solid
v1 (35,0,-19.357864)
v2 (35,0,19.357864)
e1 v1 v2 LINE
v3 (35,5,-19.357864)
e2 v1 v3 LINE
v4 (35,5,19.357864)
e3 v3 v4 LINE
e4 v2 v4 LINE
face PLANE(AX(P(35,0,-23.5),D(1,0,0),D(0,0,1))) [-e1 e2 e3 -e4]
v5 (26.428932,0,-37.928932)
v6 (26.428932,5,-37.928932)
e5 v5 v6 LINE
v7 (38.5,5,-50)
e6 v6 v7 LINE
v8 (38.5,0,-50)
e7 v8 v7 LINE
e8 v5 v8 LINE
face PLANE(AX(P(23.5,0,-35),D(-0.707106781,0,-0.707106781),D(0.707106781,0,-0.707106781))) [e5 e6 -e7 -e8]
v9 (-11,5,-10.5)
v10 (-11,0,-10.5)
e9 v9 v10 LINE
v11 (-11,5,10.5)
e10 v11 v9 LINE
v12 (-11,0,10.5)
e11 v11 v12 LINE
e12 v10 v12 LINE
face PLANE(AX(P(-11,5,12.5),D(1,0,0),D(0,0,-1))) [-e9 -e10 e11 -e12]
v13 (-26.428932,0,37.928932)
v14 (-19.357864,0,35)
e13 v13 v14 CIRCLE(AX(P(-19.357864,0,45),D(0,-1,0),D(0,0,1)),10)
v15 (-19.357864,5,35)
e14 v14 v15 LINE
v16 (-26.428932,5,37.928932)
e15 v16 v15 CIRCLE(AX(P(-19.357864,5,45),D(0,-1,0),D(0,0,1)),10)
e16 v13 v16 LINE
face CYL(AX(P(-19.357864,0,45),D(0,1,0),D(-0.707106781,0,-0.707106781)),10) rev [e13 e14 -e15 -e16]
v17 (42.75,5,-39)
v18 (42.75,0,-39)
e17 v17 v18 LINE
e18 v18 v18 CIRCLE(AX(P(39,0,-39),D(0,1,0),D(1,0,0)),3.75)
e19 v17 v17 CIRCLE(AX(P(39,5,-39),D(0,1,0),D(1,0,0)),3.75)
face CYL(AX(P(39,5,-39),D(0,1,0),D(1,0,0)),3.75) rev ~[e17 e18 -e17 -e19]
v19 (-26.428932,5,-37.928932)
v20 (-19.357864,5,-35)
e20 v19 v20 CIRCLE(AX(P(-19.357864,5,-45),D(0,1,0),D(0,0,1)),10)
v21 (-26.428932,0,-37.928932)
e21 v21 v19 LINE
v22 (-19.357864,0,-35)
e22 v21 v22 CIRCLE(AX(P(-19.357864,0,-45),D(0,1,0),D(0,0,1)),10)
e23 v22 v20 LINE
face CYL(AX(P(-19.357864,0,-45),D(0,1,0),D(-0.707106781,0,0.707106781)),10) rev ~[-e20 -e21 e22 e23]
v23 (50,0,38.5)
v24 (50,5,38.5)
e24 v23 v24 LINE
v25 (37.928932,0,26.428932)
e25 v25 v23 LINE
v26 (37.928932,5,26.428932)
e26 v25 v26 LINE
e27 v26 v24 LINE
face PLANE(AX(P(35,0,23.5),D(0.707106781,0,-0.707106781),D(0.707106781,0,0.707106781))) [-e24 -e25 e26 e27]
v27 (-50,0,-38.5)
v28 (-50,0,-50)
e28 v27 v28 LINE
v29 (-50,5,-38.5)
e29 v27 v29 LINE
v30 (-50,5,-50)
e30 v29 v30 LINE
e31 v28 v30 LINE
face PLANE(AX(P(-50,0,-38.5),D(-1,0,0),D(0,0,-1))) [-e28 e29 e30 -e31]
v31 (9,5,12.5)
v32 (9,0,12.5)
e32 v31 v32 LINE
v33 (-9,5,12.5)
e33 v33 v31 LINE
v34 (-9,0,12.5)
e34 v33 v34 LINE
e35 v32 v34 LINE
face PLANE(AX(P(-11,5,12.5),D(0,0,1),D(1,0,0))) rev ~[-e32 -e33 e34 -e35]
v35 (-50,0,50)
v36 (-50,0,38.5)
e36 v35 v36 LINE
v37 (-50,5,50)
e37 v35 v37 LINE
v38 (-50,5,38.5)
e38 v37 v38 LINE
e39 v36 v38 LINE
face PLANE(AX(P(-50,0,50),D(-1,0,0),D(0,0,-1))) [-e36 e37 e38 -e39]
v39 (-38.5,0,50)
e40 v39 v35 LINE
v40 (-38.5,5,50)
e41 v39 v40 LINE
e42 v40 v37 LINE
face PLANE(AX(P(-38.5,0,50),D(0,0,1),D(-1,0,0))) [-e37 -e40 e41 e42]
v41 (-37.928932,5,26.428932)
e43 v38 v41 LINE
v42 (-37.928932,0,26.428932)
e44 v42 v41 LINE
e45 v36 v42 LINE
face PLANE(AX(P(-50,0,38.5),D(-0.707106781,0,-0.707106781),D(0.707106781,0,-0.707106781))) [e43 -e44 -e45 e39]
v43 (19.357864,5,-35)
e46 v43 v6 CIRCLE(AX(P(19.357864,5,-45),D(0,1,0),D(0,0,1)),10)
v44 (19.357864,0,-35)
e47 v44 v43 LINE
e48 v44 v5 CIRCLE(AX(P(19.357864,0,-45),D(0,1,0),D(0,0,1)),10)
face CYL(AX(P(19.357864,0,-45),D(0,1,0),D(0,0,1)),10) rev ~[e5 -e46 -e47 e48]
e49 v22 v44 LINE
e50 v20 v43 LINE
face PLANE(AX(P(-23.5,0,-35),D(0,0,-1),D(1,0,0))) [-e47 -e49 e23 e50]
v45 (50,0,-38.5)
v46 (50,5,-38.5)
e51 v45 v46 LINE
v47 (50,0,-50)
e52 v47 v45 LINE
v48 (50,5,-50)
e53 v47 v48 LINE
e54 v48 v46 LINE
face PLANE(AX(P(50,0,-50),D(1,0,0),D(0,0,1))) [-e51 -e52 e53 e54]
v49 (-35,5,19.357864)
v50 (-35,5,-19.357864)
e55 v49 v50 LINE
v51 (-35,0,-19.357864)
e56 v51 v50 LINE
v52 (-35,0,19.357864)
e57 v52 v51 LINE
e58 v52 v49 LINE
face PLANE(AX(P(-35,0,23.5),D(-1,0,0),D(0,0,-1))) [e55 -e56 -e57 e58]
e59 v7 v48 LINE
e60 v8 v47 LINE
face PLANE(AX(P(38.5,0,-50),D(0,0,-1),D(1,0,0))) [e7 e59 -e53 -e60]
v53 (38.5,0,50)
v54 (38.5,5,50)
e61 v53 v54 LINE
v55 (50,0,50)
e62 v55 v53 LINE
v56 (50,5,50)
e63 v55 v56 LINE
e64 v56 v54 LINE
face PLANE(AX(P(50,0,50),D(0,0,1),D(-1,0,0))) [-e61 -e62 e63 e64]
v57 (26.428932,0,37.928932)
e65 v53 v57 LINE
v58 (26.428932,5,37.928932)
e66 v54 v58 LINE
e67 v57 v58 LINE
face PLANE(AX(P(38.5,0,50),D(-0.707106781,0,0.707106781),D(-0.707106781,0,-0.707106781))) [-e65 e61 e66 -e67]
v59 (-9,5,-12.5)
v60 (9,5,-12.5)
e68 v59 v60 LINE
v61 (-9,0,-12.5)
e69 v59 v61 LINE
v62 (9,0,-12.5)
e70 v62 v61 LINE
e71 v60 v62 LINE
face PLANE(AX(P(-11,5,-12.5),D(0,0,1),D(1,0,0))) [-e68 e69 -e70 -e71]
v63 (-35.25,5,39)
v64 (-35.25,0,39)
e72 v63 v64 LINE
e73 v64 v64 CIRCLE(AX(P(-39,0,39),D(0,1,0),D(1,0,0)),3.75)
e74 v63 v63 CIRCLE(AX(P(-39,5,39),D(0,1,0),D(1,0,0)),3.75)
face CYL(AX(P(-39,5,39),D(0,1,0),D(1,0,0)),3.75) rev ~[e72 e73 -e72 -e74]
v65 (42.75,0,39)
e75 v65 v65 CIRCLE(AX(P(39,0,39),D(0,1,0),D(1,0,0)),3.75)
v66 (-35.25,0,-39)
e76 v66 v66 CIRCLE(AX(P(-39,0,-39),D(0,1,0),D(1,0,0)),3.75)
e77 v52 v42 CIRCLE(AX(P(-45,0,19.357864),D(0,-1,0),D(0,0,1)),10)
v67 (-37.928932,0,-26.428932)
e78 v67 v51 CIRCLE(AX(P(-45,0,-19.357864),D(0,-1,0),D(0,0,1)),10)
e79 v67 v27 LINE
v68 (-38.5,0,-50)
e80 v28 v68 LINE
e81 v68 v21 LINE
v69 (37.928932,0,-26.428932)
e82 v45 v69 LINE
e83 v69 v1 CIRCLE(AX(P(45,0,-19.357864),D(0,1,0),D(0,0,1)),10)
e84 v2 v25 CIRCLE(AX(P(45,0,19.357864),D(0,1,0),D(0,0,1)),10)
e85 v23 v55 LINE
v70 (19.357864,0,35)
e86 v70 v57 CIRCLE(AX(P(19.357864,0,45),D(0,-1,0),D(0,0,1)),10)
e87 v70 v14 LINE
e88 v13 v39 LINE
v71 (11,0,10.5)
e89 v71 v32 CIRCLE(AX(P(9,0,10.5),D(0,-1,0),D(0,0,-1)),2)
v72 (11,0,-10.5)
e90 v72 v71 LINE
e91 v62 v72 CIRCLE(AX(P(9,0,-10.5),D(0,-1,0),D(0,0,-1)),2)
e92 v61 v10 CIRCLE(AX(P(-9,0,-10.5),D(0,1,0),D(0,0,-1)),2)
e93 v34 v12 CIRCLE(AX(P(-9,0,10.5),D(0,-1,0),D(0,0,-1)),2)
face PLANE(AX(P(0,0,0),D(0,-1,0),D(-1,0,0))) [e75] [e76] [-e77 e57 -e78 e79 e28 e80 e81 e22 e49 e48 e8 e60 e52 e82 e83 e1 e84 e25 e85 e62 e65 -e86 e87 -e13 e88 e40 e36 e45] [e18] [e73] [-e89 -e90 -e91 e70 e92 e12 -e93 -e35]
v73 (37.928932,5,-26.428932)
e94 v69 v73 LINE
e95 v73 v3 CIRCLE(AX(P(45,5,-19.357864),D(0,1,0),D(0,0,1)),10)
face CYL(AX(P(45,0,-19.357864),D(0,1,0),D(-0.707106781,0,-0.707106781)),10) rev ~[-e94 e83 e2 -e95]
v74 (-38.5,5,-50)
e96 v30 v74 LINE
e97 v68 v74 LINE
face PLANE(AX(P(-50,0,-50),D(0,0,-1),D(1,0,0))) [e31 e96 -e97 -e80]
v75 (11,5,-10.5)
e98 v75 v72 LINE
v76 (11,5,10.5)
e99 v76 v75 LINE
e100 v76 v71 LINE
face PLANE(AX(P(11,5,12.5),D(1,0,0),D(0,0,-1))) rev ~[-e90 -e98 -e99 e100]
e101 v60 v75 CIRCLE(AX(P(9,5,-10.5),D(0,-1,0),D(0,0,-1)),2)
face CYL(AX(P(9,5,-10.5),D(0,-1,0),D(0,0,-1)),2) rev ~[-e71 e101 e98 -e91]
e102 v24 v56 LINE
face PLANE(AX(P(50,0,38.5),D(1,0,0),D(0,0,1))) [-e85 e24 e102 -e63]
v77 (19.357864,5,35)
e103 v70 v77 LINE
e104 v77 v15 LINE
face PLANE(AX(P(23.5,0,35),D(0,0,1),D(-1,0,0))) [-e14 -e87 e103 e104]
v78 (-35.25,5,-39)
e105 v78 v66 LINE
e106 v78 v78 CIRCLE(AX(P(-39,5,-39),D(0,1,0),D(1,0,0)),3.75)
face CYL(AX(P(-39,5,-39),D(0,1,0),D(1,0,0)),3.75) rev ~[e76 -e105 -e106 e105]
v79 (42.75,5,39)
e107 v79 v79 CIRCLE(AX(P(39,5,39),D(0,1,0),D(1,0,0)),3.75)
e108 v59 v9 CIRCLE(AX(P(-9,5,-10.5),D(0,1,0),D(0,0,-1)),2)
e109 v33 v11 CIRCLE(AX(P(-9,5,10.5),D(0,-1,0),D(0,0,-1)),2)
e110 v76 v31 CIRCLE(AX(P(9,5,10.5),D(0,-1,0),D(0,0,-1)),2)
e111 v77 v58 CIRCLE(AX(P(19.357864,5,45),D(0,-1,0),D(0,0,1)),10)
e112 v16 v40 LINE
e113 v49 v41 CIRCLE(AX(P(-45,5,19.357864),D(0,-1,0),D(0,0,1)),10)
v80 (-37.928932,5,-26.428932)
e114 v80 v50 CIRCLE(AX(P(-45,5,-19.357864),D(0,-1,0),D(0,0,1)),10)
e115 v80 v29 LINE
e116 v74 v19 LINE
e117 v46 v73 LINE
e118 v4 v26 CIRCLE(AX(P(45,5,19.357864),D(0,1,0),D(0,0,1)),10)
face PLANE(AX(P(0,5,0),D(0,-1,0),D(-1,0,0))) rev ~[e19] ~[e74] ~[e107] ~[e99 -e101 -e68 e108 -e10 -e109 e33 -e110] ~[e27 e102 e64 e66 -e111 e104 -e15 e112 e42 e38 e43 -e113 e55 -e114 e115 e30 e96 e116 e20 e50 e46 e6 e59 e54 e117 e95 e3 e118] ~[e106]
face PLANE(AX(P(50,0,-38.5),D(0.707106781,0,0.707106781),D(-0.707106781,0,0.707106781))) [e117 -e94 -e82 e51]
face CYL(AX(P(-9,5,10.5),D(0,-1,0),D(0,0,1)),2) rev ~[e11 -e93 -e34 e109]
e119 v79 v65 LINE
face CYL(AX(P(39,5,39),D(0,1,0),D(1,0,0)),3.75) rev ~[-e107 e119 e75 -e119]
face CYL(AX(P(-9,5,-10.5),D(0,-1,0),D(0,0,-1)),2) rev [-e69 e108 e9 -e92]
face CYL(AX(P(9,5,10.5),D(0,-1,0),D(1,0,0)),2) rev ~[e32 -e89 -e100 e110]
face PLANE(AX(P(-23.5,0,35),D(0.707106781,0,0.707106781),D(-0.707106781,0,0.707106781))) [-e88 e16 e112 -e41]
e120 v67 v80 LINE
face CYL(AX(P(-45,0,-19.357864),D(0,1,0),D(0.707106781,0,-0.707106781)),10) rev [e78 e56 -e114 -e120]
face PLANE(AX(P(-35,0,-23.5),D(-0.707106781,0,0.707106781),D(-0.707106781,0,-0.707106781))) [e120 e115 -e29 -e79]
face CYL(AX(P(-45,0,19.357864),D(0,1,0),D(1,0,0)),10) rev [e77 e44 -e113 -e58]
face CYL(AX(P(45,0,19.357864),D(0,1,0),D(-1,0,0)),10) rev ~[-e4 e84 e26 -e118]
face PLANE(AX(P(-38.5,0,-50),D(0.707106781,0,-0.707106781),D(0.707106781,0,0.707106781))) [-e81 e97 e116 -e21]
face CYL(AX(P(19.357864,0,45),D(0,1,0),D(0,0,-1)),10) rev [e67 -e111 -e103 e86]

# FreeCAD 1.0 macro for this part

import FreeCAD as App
import Part
import Sketcher
from FreeCAD import Vector
Q = App.Units.Quantity


def edges_at(feature, points):
    """Names of the edges that pass closest to the given points."""
    edges = feature.Shape.Edges
    near = lambda p: min(range(len(edges)), key=lambda i: edges[i].distToShape(Part.Vertex(*p))[0])
    return sorted({f"Edge{near(p) + 1}" for p in points})


def add_polygon(sketch, points):
    """Adds a closed chain of lines whose ends are joined by coincident constraints."""
    first, n = sketch.GeometryCount, len(points)
    for a, b in zip(points, points[1:] + points[:1]):
        sketch.addGeometry(Part.LineSegment(App.Vector(*a, 0), App.Vector(*b, 0)), False)
    for i in range(n):
        sketch.addConstraint(Sketcher.Constraint("Coincident", first + i, 2, first + (i + 1) % n, 1))

doc = App.newDocument("Part")
body = doc.addObject("PartDesign::Body", "Body")

# Sketch on XZ plane
sketch1 = body.newObject("Sketcher::SketchObject", "Sketch")
sketch1.AttachmentSupport = (doc.getObject("XZ_Plane"), [""])
sketch1.MapMode = "FlatFace"
add_polygon(sketch1, [(-50, -50), (-50, -38), (-35, -24), (-35, 24), (-50, 38), (-50, 50), (-38, 50), (-24, 35), (24, 35), (38, 50), (50, 50), (50, 38), (35, 24), (35, -24), (50, -38), (50, -50), (38, -50), (24, -35), (-24, -35), (-38, -50)])  # lines 0-19
sketch1.addConstraint([
    Sketcher.Constraint("Vertical", 0),
    Sketcher.Constraint("Vertical", 2),
    Sketcher.Constraint("Vertical", 4),
    Sketcher.Constraint("Horizontal", 5),
    Sketcher.Constraint("Horizontal", 7),
    Sketcher.Constraint("Horizontal", 9),
    Sketcher.Constraint("Vertical", 10),
    Sketcher.Constraint("Vertical", 12),
    Sketcher.Constraint("Vertical", 14),
    Sketcher.Constraint("Horizontal", 15),
    Sketcher.Constraint("Horizontal", 17),
    Sketcher.Constraint("Horizontal", 19),
    Sketcher.Constraint("Symmetric", 0, 2, 10, 2, -1, 1),
    Sketcher.Constraint("Symmetric", 1, 2, 11, 2, -1, 1),
    Sketcher.Constraint("Symmetric", 3, 2, 13, 2, -1, 1),
    Sketcher.Constraint("Symmetric", 5, 2, 15, 2, -1, 1),
    Sketcher.Constraint("Symmetric", 6, 2, 16, 2, -1, 1),
    Sketcher.Constraint("Symmetric", 8, 2, 18, 2, -1, 1),
    Sketcher.Constraint("Symmetric", 5, 2, 8, 2, -2),
    Sketcher.Constraint("Symmetric", 3, 2, 10, 2, -2),
    Sketcher.Constraint("Perpendicular", 1, 3),
    Sketcher.Constraint("Parallel", 3, 6),
    Sketcher.Constraint("Perpendicular", 6, 8),
    Sketcher.Constraint("Perpendicular", 11, 13),
    Sketcher.Constraint("Perpendicular", 16, 18),
    Sketcher.Constraint("Horizontal", 2, 2, 11, 2),
    Sketcher.Constraint("Equal", 19, 0),
    Sketcher.Constraint("Equal", 17, 2),
    Sketcher.Constraint("Equal", 3, 6),
    Sketcher.Constraint("DistanceX", 7, 1, 7, 2, Q("47 mm")),
    Sketcher.Constraint("DistanceX", 5, 1, 5, 2, Q("11.5 mm")),
    Sketcher.Constraint("DistanceX", 0, 2, -1, 1, Q("50 mm")),
])
pad1 = body.newObject("PartDesign::Pad", "Pad")
pad1.Profile = sketch1
pad1.Length = 5
pad1.Reversed = True

# Sketch on XZ plane
sketch2 = body.newObject("Sketcher::SketchObject", "Sketch001")
sketch2.AttachmentSupport = (doc.getObject("XZ_Plane"), [""])
sketch2.MapMode = "FlatFace"
sketch2.AttachmentOffset = App.Placement(Vector(0, 0, -5), App.Rotation())
sketch2.addGeometry([
    Part.Circle(Vector(-39, -39, 0), Vector(0, 0, 1), 3.8),
    Part.Circle(Vector(39, -39, 0), Vector(0, 0, 1), 3.8),
    Part.Circle(Vector(39, 39, 0), Vector(0, 0, 1), 3.8),
    Part.Circle(Vector(-39, 39, 0), Vector(0, 0, 1), 3.8),
], False)
sketch2.addConstraint([
    Sketcher.Constraint("Equal", 0, 1),
    Sketcher.Constraint("Equal", 1, 2),
    Sketcher.Constraint("Equal", 2, 3),
    Sketcher.Constraint("Symmetric", 0, 3, 2, 3, -1, 1),
    Sketcher.Constraint("Symmetric", 1, 3, 3, 3, -1, 1),
    Sketcher.Constraint("Symmetric", 0, 3, 1, 3, -2),
    Sketcher.Constraint("Diameter", 0, Q("7.5 mm")),
    Sketcher.Constraint("DistanceX", 0, 3, -1, 1, Q("39 mm")),
    Sketcher.Constraint("DistanceY", 0, 3, -1, 1, Q("39 mm")),
])
pocket1 = body.newObject("PartDesign::Pocket", "Pocket")
pocket1.Profile = sketch2
pocket1.Type = "ThroughAll"
pocket1.Reversed = True
doc.recompute()

fillet = body.newObject("PartDesign::Fillet", "Fillet")
fillet.Base = (pocket1, edges_at(pocket1, [
    (-23.5, 2.5, -35),
    (23.5, 2.5, -35),
    (35, 2.5, -23.5),
    (35, 2.5, 23.5),
    (23.5, 2.5, 35),
    (-23.5, 2.5, 35),
    (-35, 2.5, 23.5),
    (-35, 2.5, -23.5),
]))
fillet.Radius = 10

# Sketch on XZ plane
sketch3 = body.newObject("Sketcher::SketchObject", "Sketch002")
sketch3.AttachmentSupport = (doc.getObject("XZ_Plane"), [""])
sketch3.MapMode = "FlatFace"
sketch3.AttachmentOffset = App.Placement(Vector(0, 0, -5), App.Rotation())
add_polygon(sketch3, [(-11, -12), (-11, 12), (11, 12), (11, -12)])  # lines 0-3
sketch3.addConstraint([
    Sketcher.Constraint("Vertical", 0),
    Sketcher.Constraint("Horizontal", 1),
    Sketcher.Constraint("Vertical", 2),
    Sketcher.Constraint("Horizontal", 3),
    Sketcher.Constraint("Symmetric", 0, 2, 2, 2, -1, 1),
    Sketcher.Constraint("DistanceX", 1, 1, 1, 2, Q("22 mm")),
    Sketcher.Constraint("DistanceY", 0, 1, 0, 2, Q("25 mm")),
])
pocket2 = body.newObject("PartDesign::Pocket", "Pocket001")
pocket2.Profile = sketch3
pocket2.Type = "ThroughAll"
pocket2.Reversed = True
doc.recompute()

fillet2 = body.newObject("PartDesign::Fillet", "Fillet001")
fillet2.Base = (pocket2, edges_at(pocket2, [
    (11, 2.5, -12.5),
    (11, 2.5, 12.5),
    (-11, 2.5, 12.5),
    (-11, 2.5, -12.5),
]))
fillet2.Radius = 2

doc.recompute()
